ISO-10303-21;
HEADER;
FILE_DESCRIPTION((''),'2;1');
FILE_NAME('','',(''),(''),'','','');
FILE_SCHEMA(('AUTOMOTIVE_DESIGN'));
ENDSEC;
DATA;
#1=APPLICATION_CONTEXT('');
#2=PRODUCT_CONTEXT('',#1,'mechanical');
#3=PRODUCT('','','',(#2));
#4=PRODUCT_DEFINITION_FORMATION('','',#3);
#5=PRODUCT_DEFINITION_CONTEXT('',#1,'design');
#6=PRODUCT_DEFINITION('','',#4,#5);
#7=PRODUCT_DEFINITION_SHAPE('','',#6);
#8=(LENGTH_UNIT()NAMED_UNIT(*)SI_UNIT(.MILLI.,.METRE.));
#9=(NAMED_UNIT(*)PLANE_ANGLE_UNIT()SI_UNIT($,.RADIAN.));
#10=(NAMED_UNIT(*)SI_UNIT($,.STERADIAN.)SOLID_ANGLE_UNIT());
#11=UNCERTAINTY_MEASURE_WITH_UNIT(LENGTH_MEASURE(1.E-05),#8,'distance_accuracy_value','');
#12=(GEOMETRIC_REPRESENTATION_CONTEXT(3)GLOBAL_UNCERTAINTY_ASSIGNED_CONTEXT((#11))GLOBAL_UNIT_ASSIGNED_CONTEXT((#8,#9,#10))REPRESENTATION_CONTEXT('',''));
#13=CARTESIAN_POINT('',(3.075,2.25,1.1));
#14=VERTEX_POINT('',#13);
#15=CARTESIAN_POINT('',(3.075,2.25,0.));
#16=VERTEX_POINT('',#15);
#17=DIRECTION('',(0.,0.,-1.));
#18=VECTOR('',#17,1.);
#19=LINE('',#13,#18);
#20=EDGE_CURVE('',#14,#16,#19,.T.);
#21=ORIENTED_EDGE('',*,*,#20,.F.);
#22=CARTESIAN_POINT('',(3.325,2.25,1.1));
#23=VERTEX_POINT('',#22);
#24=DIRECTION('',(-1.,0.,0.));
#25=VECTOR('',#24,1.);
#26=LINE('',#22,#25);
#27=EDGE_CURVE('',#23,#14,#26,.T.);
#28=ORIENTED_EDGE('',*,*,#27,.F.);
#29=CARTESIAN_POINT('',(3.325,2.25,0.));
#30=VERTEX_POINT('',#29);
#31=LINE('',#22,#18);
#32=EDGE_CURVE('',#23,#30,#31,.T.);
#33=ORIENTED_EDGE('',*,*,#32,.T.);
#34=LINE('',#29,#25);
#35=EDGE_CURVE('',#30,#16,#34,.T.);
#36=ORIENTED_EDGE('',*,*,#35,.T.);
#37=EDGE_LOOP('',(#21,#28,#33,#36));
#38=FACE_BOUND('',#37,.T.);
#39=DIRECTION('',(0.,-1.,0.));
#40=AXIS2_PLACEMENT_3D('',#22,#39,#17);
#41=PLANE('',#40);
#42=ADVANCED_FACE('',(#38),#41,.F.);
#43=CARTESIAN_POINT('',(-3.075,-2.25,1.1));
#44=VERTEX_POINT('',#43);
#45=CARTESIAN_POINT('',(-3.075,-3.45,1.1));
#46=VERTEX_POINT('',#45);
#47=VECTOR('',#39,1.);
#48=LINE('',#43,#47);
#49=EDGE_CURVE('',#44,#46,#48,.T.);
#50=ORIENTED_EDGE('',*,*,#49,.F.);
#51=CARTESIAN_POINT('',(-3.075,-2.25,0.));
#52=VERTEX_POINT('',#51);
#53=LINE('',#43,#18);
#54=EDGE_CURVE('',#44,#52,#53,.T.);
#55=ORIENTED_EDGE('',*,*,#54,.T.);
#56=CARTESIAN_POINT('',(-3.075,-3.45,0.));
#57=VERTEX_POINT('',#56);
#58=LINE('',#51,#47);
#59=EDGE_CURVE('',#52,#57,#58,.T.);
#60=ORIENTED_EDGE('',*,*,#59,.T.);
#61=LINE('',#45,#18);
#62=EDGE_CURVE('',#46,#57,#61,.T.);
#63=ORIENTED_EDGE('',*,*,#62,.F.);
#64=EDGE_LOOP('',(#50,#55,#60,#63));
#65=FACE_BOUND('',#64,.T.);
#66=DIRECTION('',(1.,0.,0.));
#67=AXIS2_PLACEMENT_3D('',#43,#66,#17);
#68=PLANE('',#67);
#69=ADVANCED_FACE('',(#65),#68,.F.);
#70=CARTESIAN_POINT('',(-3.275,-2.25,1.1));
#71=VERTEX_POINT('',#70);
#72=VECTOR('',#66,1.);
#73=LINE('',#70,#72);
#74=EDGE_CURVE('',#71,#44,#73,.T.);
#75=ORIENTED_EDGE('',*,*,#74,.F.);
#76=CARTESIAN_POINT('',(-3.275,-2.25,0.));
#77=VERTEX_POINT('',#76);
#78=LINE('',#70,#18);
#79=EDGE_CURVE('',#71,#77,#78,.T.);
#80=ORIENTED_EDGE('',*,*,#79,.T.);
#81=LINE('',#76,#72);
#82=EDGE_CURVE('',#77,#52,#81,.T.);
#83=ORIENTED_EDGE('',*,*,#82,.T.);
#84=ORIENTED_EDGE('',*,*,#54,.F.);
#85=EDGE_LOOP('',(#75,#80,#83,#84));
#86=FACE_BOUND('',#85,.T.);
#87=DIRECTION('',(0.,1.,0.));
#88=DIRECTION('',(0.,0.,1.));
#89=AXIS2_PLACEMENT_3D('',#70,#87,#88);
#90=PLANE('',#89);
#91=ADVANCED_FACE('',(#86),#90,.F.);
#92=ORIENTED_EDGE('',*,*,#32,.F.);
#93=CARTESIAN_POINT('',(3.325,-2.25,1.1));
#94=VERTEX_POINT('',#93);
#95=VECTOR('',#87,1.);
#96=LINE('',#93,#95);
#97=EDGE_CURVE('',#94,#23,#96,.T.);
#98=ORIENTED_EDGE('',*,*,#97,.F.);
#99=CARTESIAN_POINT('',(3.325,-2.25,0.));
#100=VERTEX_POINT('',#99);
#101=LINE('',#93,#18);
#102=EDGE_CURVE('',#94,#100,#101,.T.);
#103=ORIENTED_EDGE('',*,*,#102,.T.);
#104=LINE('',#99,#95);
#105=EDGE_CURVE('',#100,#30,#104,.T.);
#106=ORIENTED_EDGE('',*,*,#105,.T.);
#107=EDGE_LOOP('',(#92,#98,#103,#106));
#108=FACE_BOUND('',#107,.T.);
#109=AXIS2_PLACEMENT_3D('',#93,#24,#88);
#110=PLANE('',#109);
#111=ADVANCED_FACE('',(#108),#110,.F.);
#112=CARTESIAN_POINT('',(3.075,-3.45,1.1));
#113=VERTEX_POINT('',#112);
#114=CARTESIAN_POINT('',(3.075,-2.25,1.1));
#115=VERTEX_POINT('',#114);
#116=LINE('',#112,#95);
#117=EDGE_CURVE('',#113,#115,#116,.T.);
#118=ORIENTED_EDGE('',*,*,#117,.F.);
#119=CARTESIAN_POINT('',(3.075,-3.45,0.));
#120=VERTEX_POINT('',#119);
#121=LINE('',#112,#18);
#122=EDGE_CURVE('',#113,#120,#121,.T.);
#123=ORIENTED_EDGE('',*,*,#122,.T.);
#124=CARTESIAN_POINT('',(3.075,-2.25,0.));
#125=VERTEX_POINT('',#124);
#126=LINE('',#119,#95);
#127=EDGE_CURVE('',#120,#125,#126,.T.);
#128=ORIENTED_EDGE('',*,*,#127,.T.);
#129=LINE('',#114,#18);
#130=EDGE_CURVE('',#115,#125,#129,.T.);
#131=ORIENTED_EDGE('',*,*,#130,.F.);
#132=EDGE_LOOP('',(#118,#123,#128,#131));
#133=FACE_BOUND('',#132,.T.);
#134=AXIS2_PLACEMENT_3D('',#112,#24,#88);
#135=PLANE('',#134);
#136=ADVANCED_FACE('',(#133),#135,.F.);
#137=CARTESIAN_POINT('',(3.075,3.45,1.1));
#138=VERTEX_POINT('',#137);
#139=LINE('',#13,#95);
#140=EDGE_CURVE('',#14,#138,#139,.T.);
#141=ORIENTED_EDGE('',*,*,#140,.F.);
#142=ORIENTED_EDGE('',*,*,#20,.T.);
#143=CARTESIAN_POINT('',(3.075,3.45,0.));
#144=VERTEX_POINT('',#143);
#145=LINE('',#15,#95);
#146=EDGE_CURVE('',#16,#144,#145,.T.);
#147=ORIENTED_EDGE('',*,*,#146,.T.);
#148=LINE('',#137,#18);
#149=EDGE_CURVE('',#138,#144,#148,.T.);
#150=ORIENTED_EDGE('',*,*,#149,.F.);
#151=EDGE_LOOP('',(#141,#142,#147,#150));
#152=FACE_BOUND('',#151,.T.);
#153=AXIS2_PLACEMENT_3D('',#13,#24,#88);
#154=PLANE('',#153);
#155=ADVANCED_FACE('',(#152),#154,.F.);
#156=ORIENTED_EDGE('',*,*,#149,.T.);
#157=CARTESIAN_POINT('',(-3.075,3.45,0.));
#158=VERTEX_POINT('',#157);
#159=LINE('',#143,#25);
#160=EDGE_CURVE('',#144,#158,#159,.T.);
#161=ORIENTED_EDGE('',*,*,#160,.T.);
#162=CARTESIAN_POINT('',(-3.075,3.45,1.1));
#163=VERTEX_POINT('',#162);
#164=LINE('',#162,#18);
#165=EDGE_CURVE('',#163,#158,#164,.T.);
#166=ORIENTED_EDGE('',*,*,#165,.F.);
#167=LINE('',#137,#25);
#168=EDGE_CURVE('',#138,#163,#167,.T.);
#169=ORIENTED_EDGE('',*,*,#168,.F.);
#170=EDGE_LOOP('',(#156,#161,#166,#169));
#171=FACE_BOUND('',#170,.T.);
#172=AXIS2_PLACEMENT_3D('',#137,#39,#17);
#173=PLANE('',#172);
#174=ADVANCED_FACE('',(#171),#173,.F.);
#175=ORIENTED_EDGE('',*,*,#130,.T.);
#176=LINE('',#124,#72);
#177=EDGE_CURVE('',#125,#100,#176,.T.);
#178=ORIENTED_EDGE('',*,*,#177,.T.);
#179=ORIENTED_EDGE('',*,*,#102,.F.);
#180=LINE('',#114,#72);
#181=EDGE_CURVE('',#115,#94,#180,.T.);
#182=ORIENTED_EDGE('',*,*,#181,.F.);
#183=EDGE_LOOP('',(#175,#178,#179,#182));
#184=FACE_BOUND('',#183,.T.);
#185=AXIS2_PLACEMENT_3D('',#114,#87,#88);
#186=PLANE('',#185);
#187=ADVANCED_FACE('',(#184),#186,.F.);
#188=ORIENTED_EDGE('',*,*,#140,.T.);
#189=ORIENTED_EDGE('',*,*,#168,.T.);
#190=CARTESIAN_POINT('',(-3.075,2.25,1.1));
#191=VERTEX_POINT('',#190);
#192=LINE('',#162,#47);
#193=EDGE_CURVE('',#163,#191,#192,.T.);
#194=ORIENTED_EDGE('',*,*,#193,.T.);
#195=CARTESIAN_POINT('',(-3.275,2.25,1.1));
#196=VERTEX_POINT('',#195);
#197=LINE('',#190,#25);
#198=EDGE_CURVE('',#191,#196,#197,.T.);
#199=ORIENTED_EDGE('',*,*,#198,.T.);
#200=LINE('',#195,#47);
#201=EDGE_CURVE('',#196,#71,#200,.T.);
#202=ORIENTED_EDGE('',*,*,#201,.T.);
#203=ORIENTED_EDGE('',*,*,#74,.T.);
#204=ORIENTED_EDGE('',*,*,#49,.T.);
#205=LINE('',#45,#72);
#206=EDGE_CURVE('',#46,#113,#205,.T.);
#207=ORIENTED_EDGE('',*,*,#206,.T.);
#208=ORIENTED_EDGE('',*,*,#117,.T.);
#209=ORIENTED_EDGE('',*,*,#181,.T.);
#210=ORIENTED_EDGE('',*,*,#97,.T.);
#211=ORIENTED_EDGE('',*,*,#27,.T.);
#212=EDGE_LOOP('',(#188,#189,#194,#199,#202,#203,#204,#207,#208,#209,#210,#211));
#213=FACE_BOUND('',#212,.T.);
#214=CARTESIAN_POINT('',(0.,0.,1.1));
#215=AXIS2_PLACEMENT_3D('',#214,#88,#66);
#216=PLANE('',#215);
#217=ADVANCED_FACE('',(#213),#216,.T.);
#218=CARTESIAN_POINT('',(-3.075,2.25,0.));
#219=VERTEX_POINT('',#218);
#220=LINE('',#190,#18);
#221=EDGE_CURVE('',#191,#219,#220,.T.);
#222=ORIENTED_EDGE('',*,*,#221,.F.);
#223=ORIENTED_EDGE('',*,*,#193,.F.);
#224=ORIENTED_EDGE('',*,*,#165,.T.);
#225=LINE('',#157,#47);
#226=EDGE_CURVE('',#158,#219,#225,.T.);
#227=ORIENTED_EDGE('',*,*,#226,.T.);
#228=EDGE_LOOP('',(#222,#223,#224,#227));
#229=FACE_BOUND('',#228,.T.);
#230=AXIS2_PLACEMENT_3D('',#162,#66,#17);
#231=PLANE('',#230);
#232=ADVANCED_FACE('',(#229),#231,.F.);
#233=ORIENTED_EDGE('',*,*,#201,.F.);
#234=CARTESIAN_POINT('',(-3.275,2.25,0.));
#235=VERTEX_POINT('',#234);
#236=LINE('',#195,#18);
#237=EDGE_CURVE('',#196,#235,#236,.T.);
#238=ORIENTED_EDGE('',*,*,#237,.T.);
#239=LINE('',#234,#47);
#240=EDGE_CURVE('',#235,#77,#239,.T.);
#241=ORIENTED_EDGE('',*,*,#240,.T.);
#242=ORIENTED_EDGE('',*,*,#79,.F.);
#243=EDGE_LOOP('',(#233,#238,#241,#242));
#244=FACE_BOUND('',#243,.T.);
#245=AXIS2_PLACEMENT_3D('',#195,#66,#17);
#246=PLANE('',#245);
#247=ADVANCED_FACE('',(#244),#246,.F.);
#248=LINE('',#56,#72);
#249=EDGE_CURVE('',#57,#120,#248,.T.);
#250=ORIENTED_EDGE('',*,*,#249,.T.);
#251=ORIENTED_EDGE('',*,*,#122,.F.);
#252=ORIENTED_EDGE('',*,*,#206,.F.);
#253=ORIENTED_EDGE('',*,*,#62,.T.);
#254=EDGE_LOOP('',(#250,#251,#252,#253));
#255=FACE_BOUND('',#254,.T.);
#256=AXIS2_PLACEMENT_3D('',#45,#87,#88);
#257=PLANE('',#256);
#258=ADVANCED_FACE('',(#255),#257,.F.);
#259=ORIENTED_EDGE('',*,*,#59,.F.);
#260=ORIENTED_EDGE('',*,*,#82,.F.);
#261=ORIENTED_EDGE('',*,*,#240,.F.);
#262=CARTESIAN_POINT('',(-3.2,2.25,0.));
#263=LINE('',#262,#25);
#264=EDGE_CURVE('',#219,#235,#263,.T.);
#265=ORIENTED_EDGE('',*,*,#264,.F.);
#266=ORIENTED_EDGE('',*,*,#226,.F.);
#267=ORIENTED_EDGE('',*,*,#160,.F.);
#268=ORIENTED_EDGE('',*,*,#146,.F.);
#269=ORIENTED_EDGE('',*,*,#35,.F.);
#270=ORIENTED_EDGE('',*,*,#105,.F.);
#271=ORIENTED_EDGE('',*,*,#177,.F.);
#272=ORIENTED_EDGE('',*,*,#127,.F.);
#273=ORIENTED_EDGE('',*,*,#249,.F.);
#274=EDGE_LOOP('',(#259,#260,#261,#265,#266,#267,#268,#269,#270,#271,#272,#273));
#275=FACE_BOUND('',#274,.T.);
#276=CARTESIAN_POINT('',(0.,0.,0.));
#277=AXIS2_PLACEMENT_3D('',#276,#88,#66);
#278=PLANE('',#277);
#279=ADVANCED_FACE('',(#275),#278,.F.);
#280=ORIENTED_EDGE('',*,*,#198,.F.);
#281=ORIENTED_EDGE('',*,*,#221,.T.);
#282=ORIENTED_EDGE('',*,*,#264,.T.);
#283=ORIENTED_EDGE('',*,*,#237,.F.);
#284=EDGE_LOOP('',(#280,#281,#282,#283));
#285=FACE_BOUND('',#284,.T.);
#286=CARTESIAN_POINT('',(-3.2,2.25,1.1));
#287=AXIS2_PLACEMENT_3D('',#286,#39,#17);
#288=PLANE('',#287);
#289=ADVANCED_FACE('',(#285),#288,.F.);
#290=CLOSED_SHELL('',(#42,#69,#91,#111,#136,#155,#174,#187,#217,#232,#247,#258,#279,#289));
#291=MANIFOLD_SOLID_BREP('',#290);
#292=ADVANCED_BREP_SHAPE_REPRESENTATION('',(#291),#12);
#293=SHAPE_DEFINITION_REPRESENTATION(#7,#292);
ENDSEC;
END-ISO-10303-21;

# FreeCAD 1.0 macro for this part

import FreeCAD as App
import Part
import Sketcher
from FreeCAD import Vector


def add_polygon(sketch, points):
    """Adds a closed chain of lines whose ends are joined by coincident constraints."""
    first, n = sketch.GeometryCount, len(points)
    for a, b in zip(points, points[1:] + points[:1]):
        sketch.addGeometry(Part.LineSegment(App.Vector(*a, 0), App.Vector(*b, 0)), False)
    for i in range(n):
        sketch.addConstraint(Sketcher.Constraint("Coincident", first + i, 2, first + (i + 1) % n, 1))

doc = App.newDocument("Part")
body = doc.addObject("PartDesign::Body", "Body")

sketch1 = body.newObject("Sketcher::SketchObject", "Sketch")
sketch1.AttachmentSupport = (doc.getObject("XY_Plane"), [""])
sketch1.MapMode = "FlatFace"
add_polygon(sketch1, [(-3.27, -2.25), (-3.08, -2.25), (-3.08, -3.45), (3.08, -3.45), (3.08, -2.25), (3.33, -2.25), (3.33, 2.25), (3.08, 2.25), (3.08, 3.45), (-3.08, 3.45), (-3.08, 2.25), (-3.27, 2.25)])
sketch1.addConstraint(Sketcher.Constraint("Horizontal", 0))
sketch1.addConstraint(Sketcher.Constraint("Vertical", 1))
sketch1.addConstraint(Sketcher.Constraint("Horizontal", 2))
sketch1.addConstraint(Sketcher.Constraint("Vertical", 3))
sketch1.addConstraint(Sketcher.Constraint("Horizontal", 4))
sketch1.addConstraint(Sketcher.Constraint("Vertical", 5))
sketch1.addConstraint(Sketcher.Constraint("Horizontal", 6))
sketch1.addConstraint(Sketcher.Constraint("Vertical", 7))
sketch1.addConstraint(Sketcher.Constraint("Horizontal", 8))
sketch1.addConstraint(Sketcher.Constraint("Vertical", 9))
sketch1.addConstraint(Sketcher.Constraint("Horizontal", 10))
sketch1.addConstraint(Sketcher.Constraint("Vertical", 11))
sketch1.addConstraint(Sketcher.Constraint("Symmetric", 0, 2, 6, 2, -1, 1))
sketch1.addConstraint(Sketcher.Constraint("Symmetric", 2, 2, 8, 2, -1, 1))
sketch1.addConstraint(Sketcher.Constraint("Symmetric", 0, 2, 3, 2, -2))
sketch1.addConstraint(Sketcher.Constraint("Horizontal", 6, 2, 9, 2))
sketch1.addConstraint(Sketcher.Constraint("DistanceX", 0, 1, 0, 2, 0.2))
sketch1.addConstraint(Sketcher.Constraint("DistanceY", 1, 2, 1, 1, 1.2))
sketch1.addConstraint(Sketcher.Constraint("DistanceY", 5, 1, 5, 2, 4.5))
sketch1.addConstraint(Sketcher.Constraint("DistanceX", 2, 1, 2, 2, 6.15))
sketch1.addConstraint(Sketcher.Constraint("DistanceX", 4, 1, 4, 2, 0.25))
pad1 = body.newObject("PartDesign::Pad", "Pad")
pad1.Profile = sketch1
pad1.Length = 1.1

doc.recompute()
